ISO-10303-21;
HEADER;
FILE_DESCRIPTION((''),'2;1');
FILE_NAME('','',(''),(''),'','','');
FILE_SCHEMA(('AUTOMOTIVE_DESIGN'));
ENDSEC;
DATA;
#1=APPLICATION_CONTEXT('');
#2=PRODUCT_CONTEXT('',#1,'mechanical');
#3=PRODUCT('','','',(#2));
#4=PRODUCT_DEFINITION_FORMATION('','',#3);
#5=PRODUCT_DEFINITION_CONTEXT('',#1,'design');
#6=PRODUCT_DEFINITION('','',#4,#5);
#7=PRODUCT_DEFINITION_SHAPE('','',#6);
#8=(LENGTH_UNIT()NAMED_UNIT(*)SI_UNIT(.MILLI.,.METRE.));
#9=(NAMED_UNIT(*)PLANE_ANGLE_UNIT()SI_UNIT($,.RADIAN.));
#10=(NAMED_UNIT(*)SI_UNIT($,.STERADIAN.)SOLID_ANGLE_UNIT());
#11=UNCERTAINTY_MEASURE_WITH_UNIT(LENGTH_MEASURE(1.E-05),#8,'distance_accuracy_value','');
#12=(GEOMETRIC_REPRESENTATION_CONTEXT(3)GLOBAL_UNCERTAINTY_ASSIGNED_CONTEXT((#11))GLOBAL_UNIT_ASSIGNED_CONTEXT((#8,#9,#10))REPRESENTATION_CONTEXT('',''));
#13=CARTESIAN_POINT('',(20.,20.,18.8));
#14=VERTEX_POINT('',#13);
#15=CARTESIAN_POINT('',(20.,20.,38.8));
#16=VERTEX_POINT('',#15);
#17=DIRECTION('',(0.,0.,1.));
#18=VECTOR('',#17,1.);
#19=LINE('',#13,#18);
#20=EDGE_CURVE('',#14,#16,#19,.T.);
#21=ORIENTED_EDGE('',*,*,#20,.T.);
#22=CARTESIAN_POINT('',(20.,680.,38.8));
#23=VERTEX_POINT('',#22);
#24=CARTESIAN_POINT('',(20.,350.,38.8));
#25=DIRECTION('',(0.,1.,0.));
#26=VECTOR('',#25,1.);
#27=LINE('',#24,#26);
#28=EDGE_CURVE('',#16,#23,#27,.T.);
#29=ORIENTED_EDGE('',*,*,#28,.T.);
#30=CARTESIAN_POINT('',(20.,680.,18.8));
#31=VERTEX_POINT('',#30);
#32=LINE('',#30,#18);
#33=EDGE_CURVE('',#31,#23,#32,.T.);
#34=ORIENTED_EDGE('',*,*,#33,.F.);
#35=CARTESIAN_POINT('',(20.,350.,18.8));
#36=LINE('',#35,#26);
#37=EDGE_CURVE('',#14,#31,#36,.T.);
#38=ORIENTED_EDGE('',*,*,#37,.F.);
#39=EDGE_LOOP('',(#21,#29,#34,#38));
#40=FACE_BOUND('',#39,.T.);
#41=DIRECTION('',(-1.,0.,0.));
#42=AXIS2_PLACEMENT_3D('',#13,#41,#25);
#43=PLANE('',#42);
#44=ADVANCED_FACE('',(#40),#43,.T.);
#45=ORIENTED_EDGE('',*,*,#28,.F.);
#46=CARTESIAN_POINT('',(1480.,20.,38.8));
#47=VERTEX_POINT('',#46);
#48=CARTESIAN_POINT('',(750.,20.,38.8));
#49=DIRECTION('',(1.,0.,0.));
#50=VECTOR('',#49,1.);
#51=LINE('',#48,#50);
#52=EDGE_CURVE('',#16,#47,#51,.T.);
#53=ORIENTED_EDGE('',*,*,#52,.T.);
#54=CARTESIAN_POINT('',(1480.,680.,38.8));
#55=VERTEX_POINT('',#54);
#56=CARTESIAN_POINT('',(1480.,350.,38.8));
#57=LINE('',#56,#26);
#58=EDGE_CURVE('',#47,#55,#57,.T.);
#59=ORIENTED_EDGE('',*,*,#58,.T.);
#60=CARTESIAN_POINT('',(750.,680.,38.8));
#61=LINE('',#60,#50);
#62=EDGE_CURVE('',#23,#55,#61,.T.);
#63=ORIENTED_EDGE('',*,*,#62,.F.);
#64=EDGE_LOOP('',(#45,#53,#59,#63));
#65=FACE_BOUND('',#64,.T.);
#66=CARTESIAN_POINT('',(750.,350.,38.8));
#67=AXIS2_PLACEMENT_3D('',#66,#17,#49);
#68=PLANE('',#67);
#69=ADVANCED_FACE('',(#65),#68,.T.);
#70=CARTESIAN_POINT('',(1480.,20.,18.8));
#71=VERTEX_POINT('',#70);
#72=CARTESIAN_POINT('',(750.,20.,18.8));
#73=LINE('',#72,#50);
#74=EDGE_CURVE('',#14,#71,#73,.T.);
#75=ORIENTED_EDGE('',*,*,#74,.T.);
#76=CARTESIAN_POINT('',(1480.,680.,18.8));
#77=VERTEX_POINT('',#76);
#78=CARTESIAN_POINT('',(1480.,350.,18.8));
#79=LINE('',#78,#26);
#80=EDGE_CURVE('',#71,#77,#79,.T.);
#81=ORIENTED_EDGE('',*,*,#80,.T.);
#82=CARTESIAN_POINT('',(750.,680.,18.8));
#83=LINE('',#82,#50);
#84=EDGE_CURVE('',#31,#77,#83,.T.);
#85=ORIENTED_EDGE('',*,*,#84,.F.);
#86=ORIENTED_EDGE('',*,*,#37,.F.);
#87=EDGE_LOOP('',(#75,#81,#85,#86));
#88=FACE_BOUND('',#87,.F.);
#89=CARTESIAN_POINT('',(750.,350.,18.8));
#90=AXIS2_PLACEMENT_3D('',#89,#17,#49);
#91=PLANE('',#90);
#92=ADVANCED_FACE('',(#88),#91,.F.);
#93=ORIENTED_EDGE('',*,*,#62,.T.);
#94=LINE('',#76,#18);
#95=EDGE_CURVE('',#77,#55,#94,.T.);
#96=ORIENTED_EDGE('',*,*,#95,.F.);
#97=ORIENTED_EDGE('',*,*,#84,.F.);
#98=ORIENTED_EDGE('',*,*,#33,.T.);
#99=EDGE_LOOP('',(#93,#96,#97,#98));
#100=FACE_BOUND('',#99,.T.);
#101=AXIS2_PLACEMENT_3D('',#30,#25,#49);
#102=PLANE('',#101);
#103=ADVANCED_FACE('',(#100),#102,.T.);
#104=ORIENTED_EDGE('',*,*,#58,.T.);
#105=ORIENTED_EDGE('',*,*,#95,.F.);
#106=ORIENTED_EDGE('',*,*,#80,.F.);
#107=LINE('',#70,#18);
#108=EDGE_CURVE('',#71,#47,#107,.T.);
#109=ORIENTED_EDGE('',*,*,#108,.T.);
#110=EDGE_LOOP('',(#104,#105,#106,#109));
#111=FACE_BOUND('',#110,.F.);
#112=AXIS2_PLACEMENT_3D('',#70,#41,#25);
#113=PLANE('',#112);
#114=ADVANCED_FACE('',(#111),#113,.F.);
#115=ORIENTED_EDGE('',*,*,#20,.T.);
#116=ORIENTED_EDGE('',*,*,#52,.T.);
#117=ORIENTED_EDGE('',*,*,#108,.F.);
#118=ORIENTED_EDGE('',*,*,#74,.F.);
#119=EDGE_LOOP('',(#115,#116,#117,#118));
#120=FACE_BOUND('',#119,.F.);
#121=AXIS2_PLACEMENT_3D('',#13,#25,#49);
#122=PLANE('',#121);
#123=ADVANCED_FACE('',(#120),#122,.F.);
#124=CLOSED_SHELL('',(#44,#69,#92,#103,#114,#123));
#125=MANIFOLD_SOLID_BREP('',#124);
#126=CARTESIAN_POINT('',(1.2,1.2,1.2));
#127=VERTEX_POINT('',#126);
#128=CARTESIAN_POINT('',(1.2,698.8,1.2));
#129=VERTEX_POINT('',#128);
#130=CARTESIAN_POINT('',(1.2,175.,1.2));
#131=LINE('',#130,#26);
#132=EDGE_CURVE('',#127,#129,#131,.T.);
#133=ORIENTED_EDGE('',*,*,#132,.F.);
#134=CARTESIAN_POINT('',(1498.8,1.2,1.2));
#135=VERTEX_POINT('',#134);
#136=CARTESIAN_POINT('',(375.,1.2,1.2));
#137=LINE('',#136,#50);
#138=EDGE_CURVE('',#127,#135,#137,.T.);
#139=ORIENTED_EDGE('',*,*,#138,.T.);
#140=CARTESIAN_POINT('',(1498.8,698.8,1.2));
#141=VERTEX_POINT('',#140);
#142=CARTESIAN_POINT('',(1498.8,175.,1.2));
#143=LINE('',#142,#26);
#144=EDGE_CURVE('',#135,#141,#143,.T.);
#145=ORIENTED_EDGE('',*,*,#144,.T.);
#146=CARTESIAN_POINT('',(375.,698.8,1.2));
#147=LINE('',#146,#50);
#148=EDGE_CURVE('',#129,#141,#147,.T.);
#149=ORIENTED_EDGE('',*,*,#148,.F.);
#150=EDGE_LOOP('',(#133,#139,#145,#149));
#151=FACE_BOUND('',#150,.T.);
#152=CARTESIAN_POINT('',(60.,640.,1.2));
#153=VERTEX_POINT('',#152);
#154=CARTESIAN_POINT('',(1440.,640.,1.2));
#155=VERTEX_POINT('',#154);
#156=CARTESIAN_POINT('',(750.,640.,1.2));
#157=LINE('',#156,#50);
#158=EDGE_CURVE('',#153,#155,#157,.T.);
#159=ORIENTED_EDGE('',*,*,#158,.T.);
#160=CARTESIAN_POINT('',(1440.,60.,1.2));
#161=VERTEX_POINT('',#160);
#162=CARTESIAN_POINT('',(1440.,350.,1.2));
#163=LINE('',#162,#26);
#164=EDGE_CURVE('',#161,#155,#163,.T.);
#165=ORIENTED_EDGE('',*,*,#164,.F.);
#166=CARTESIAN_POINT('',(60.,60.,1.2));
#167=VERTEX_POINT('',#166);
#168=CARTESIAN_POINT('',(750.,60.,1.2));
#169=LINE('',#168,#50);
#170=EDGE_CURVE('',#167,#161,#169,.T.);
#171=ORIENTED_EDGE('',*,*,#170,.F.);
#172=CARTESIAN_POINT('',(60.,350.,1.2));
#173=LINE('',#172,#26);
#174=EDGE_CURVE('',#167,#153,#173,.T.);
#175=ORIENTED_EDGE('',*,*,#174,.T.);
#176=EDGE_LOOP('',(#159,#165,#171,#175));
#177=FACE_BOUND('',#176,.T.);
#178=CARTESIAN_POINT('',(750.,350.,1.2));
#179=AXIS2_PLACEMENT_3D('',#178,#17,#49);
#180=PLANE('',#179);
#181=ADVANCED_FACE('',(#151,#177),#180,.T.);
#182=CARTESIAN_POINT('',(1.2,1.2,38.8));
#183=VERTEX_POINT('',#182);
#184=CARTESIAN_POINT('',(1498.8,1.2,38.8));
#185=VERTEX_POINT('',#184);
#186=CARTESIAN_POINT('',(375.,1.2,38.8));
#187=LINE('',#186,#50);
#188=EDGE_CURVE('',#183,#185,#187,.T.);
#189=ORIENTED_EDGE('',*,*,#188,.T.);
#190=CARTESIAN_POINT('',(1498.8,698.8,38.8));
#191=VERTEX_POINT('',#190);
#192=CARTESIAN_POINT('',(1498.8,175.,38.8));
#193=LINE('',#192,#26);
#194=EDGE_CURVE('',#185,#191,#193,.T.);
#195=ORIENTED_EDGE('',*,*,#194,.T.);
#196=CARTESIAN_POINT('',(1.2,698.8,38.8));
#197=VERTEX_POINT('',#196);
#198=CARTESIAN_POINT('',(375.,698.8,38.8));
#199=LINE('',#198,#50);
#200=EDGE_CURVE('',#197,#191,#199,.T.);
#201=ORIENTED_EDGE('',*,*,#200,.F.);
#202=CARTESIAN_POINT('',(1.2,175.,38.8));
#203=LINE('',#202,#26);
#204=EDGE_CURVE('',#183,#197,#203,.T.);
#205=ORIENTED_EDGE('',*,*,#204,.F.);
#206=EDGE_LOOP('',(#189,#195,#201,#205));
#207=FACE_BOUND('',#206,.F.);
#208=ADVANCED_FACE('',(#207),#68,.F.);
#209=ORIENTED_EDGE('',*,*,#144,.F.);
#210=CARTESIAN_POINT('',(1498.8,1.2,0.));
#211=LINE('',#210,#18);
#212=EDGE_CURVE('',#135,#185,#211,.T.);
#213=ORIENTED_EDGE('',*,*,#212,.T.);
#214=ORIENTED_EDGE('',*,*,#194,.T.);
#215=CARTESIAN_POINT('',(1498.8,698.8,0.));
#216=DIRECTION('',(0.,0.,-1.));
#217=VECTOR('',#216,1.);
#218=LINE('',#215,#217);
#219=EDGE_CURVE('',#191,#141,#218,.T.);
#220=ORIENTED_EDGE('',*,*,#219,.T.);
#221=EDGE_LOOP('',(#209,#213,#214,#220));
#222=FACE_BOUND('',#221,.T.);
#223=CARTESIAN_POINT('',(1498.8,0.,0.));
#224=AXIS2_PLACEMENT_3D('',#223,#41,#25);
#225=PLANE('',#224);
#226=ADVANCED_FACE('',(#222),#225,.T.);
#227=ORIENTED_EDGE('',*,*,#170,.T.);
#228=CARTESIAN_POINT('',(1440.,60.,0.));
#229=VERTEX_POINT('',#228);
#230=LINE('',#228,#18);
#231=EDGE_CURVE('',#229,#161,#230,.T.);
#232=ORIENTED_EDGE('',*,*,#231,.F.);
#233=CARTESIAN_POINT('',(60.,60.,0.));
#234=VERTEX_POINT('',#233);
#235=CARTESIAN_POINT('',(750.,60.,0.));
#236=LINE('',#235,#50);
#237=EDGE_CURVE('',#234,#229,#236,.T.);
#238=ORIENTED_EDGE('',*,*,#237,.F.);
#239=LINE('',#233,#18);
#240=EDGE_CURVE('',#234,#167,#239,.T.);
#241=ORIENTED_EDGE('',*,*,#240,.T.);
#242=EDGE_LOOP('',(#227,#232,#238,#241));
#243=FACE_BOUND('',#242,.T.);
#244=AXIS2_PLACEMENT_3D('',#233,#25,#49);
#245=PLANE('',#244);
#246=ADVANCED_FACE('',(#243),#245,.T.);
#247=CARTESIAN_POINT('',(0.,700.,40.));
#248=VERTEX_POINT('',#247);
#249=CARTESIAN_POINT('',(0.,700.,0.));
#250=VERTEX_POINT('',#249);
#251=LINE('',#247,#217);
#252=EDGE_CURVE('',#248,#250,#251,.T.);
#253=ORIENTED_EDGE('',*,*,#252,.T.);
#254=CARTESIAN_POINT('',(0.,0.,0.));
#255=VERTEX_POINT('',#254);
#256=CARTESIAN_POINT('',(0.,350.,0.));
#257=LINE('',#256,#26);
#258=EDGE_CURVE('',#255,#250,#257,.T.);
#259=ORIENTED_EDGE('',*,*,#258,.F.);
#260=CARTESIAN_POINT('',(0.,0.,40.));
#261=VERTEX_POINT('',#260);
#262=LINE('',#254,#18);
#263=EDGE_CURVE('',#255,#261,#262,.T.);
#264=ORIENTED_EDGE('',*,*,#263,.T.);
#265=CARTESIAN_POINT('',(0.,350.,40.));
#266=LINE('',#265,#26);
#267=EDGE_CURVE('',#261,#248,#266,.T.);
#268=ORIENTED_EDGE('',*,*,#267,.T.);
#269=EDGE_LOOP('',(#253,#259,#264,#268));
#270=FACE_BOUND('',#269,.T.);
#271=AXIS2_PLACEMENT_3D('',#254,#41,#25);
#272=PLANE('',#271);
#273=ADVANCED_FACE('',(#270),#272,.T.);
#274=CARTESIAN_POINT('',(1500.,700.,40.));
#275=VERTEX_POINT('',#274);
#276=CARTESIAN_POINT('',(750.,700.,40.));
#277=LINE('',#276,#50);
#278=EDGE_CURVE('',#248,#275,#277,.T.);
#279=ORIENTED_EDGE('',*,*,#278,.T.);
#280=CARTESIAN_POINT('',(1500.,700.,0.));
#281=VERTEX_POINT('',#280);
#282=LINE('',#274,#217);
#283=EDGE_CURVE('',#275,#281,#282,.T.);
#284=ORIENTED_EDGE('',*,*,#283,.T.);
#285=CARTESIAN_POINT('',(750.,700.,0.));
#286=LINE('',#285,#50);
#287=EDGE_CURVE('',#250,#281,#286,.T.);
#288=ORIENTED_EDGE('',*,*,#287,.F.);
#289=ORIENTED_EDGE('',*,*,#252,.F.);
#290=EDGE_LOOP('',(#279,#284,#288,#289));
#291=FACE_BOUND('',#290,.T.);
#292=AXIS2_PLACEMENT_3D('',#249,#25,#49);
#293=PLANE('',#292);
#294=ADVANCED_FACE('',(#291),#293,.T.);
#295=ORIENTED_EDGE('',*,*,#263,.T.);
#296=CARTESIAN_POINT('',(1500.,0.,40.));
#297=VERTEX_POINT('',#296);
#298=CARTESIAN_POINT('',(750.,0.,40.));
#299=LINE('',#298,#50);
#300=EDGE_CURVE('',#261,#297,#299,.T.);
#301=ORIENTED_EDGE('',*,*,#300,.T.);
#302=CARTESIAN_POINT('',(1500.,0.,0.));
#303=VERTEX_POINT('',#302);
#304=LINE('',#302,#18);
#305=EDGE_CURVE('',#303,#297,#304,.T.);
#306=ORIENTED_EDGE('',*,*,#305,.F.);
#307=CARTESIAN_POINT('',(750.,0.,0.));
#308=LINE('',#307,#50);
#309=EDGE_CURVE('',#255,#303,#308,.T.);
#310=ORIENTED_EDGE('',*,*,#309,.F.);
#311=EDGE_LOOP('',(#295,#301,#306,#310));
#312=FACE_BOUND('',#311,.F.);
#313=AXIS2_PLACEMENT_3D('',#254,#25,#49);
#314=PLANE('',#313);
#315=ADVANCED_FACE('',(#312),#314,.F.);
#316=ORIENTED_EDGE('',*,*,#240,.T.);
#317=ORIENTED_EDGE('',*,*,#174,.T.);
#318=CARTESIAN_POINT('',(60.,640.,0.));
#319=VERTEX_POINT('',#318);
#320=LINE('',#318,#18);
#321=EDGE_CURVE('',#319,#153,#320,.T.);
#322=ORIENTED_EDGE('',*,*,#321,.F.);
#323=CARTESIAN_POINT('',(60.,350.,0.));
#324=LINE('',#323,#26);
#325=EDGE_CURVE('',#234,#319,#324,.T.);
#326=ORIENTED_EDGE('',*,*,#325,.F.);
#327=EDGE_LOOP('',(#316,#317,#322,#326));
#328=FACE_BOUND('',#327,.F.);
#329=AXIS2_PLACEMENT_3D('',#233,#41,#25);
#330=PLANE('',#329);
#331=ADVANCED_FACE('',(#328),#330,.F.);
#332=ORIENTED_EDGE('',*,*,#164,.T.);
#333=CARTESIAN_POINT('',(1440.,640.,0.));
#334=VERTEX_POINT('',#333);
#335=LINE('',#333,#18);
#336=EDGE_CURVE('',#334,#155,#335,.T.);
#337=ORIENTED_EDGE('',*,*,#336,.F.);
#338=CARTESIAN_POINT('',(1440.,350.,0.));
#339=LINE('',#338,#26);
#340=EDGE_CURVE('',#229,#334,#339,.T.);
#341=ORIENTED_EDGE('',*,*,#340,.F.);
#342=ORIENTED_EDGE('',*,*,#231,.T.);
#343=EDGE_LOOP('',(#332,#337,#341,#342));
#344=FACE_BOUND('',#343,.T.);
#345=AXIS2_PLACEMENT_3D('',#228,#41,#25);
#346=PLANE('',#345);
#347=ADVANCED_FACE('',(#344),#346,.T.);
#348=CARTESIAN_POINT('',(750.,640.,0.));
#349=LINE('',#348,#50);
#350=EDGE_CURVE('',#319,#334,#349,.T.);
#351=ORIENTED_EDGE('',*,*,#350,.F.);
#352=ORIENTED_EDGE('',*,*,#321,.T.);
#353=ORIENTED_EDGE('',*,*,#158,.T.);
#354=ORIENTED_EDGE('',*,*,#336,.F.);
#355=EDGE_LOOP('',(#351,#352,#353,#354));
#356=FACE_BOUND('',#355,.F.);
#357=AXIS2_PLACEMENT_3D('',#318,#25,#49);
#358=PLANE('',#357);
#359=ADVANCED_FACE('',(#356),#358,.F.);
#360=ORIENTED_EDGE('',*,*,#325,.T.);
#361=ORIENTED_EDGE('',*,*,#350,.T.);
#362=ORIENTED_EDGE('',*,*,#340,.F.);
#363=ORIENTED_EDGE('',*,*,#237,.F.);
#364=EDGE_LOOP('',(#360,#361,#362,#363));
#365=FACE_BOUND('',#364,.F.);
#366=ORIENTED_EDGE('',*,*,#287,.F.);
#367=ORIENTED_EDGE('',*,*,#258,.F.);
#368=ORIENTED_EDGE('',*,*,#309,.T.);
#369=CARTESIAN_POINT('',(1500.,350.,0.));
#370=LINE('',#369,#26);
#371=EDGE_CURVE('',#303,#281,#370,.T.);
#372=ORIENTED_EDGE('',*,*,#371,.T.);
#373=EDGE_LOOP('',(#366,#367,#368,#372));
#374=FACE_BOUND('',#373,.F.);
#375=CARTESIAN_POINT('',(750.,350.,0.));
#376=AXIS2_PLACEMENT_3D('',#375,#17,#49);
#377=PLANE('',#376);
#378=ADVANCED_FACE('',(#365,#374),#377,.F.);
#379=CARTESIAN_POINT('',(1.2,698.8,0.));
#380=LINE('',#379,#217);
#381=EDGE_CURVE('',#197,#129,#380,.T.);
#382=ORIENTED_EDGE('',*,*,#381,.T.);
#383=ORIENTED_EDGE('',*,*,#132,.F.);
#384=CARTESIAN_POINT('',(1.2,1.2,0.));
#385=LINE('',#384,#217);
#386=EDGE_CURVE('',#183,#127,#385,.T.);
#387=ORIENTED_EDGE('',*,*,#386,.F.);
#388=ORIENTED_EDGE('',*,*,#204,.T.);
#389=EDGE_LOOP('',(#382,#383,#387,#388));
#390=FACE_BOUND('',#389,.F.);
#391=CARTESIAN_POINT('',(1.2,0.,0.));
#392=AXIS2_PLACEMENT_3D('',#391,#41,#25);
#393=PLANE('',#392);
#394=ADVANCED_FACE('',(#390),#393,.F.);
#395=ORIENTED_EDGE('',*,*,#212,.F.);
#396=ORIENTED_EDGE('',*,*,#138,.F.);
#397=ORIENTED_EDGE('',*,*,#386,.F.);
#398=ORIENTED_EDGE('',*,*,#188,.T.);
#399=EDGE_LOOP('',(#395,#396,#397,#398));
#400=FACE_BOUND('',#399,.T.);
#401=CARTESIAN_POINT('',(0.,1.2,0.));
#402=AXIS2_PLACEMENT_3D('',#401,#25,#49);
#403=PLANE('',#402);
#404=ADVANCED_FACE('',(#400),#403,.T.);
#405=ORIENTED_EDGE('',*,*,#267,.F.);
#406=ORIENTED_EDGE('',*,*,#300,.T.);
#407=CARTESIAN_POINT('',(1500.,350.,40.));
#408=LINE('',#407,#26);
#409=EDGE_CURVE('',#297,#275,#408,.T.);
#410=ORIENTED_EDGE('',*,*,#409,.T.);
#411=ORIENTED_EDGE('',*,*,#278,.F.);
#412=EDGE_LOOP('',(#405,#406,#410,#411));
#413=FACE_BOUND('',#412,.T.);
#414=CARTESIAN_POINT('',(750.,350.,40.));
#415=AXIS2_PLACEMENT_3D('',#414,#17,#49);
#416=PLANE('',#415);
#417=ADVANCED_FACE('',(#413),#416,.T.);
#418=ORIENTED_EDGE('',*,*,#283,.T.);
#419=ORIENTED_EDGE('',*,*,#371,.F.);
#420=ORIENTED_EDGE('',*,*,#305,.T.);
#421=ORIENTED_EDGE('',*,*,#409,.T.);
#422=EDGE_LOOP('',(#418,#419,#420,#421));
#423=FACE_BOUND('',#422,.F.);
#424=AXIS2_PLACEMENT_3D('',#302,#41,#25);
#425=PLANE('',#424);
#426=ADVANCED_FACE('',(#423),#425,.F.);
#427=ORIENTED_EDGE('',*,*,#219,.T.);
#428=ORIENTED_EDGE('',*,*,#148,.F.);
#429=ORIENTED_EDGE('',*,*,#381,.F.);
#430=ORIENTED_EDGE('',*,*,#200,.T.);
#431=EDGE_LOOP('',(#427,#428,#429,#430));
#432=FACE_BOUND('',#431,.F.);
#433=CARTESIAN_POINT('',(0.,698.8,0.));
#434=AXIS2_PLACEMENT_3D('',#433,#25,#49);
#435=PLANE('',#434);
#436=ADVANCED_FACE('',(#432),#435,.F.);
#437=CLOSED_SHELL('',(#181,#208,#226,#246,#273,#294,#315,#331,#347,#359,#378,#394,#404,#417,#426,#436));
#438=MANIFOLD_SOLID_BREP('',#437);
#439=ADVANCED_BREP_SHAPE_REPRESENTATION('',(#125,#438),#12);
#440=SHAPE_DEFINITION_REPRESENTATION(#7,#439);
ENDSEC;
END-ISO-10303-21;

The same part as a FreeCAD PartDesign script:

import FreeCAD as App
import Part
import Sketcher
from FreeCAD import Vector


def faces_at(feature, points):
    """Names of the faces that lie closest to the given points."""
    faces = feature.Shape.Faces
    near = lambda p: min(range(len(faces)), key=lambda i: faces[i].distToShape(Part.Vertex(*p))[0])
    return sorted({f"Face{near(p) + 1}" for p in points})

doc = App.newDocument("Part")
body = doc.addObject("PartDesign::Body", "Body")

# Sketch on XY plane
sketch1 = body.newObject("Sketcher::SketchObject", "Sketch")
sketch1.AttachmentSupport = (doc.getObject("XY_Plane"), [""])
sketch1.MapMode = "FlatFace"
sketch1.addGeometry([
    Part.LineSegment(Vector(0, 700, 0), Vector(0, 0, 0)),
    Part.LineSegment(Vector(0, 0, 0), Vector(1500, 0, 0)),
    Part.LineSegment(Vector(1500, 0, 0), Vector(1500, 700, 0)),
    Part.LineSegment(Vector(1500, 700, 0), Vector(0, 700, 0)),
], False)
sketch1.addConstraint([
    Sketcher.Constraint("Coincident", 0, 2, 1, 1),
    Sketcher.Constraint("Coincident", 1, 2, 2, 1),
    Sketcher.Constraint("Coincident", 2, 2, 3, 1),
    Sketcher.Constraint("Coincident", 3, 2, 0, 1),
    Sketcher.Constraint("Vertical", 0),
    Sketcher.Constraint("Horizontal", 1),
    Sketcher.Constraint("Vertical", 2),
    Sketcher.Constraint("Horizontal", 3),
    Sketcher.Constraint("Coincident", 0, 2, -1, 1),
    Sketcher.Constraint("DistanceX", 1, 1, 1, 2, 1500.0),
    Sketcher.Constraint("DistanceY", 0, 2, 0, 1, 700.0),
])
pad1 = body.newObject("PartDesign::Pad", "Pad")
pad1.Profile = sketch1
pad1.Length = 40
doc.recompute()

thickness = body.newObject("PartDesign::Thickness", "Thickness")
thickness.Base = (pad1, faces_at(pad1, [(750, 350, 0)]))
thickness.Value = 1.2
thickness.Reversed = True
thickness.Join = "Arc"

# Sketch on XY plane
sketch2 = body.newObject("Sketcher::SketchObject", "Sketch001")
sketch2.AttachmentSupport = (doc.getObject("XY_Plane"), [""])
sketch2.MapMode = "FlatFace"
sketch2.addGeometry([
    Part.LineSegment(Vector(0, 700, 0), Vector(0, 0, 0)),  # 0
    Part.LineSegment(Vector(0, 0, 0), Vector(1500, 0, 0)),  # 1
    Part.LineSegment(Vector(1500, 0, 0), Vector(1500, 700, 0)),  # 2
    Part.LineSegment(Vector(1500, 700, 0), Vector(0, 700, 0)),  # 3
    Part.LineSegment(Vector(1440, 60, 0), Vector(60, 60, 0)),  # 4
    Part.LineSegment(Vector(60, 60, 0), Vector(60, 640, 0)),  # 5
    Part.LineSegment(Vector(60, 640, 0), Vector(1440, 640, 0)),  # 6
    Part.LineSegment(Vector(1440, 640, 0), Vector(1440, 60, 0)),  # 7
], False)
sketch2.addConstraint([
    Sketcher.Constraint("Coincident", 0, 2, 1, 1),
    Sketcher.Constraint("Coincident", 1, 2, 2, 1),
    Sketcher.Constraint("Coincident", 2, 2, 3, 1),
    Sketcher.Constraint("Coincident", 3, 2, 0, 1),
    Sketcher.Constraint("Coincident", 4, 2, 5, 1),
    Sketcher.Constraint("Coincident", 5, 2, 6, 1),
    Sketcher.Constraint("Coincident", 6, 2, 7, 1),
    Sketcher.Constraint("Coincident", 7, 2, 4, 1),
    Sketcher.Constraint("Vertical", 0),
    Sketcher.Constraint("Horizontal", 1),
    Sketcher.Constraint("Vertical", 2),
    Sketcher.Constraint("Horizontal", 3),
    Sketcher.Constraint("Horizontal", 4),
    Sketcher.Constraint("Vertical", 5),
    Sketcher.Constraint("Horizontal", 6),
    Sketcher.Constraint("Vertical", 7),
    Sketcher.Constraint("Coincident", 0, 2, -1, 1),
    Sketcher.Constraint("DistanceX", 1, 1, 1, 2, 1500.0),
    Sketcher.Constraint("DistanceX", 4, 2, 4, 1, 1380.0),
    Sketcher.Constraint("DistanceY", 0, 2, 0, 1, 700.0),
    Sketcher.Constraint("DistanceY", 5, 1, 5, 2, 580.0),
    Sketcher.Constraint("DistanceX", -1, 1, 4, 2, 60.0),
    Sketcher.Constraint("DistanceY", -1, 1, 4, 2, 60.0),
])
pad2 = body.newObject("PartDesign::Pad", "Pad001")
pad2.Profile = sketch2
pad2.Length = 1.2
body2 = doc.addObject("PartDesign::Body", "Body001")

# Sketch on XY plane
sketch3 = body2.newObject("Sketcher::SketchObject", "Sketch002")
sketch3.AttachmentSupport = (doc.getObject("XY_Plane001"), [""])
sketch3.MapMode = "FlatFace"
sketch3.AttachmentOffset = App.Placement(Vector(0, 0, 18.8), App.Rotation())
sketch3.addGeometry([
    Part.LineSegment(Vector(20, 680, 0), Vector(20, 20, 0)),
    Part.LineSegment(Vector(20, 20, 0), Vector(1480, 20, 0)),
    Part.LineSegment(Vector(1480, 20, 0), Vector(1480, 680, 0)),
    Part.LineSegment(Vector(1480, 680, 0), Vector(20, 680, 0)),
], False)
sketch3.addConstraint([
    Sketcher.Constraint("Coincident", 0, 2, 1, 1),
    Sketcher.Constraint("Coincident", 1, 2, 2, 1),
    Sketcher.Constraint("Coincident", 2, 2, 3, 1),
    Sketcher.Constraint("Coincident", 3, 2, 0, 1),
    Sketcher.Constraint("Vertical", 0),
    Sketcher.Constraint("Horizontal", 1),
    Sketcher.Constraint("Vertical", 2),
    Sketcher.Constraint("Horizontal", 3),
    Sketcher.Constraint("DistanceX", 1, 1, 1, 2, 1460.0),
    Sketcher.Constraint("DistanceY", 0, 2, 0, 1, 660.0),
    Sketcher.Constraint("DistanceX", -1, 1, 0, 2, 20.0),
    Sketcher.Constraint("DistanceY", -1, 1, 0, 2, 20.0),
])
pad3 = body2.newObject("PartDesign::Pad", "Pad002")
pad3.Profile = sketch3
pad3.Length = 20

doc.recompute()
